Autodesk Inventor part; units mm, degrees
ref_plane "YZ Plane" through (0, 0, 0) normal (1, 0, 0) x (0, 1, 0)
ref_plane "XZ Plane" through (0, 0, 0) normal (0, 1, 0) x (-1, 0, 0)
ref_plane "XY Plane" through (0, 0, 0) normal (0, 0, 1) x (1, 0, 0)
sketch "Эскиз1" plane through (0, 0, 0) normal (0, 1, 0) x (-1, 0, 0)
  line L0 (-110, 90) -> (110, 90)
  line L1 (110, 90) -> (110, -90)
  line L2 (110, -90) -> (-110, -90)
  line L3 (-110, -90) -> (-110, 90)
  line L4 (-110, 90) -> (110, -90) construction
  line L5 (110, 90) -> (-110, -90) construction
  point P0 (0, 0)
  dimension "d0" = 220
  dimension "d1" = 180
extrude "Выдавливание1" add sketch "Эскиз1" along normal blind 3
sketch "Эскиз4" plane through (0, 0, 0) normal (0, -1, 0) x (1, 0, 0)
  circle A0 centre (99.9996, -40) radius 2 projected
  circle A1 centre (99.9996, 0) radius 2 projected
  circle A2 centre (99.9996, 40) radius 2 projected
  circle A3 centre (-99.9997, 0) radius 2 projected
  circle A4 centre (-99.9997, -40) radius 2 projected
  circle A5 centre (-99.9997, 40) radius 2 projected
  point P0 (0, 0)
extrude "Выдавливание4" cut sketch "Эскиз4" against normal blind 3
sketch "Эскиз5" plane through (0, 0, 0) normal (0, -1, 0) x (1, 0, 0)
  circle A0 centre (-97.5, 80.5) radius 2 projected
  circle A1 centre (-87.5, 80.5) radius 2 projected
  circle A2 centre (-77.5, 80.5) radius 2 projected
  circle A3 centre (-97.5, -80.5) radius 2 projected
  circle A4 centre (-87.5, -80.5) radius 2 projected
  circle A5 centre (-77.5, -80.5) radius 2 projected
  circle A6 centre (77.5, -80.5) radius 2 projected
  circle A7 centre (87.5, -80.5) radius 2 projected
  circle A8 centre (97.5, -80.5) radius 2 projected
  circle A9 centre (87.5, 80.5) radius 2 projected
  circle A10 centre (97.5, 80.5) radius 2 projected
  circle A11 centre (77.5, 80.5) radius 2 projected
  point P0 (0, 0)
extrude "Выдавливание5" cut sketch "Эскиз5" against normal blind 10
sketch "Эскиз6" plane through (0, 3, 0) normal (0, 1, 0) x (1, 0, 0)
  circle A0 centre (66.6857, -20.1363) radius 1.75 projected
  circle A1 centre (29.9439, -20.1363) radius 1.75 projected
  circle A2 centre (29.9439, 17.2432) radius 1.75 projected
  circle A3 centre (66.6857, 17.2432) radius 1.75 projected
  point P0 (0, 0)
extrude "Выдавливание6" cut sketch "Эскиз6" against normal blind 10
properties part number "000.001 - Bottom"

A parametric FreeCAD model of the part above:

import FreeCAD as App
import Part
import Sketcher

V = App.Vector


def add_polygon(sketch, points):
    """Adds a closed chain of lines whose ends are joined by coincident constraints."""
    first, n = sketch.GeometryCount, len(points)
    for a, b in zip(points, points[1:] + points[:1]):
        sketch.addGeometry(Part.LineSegment(App.Vector(*a, 0), App.Vector(*b, 0)), False)
    for i in range(n):
        sketch.addConstraint(Sketcher.Constraint("Coincident", first + i, 2, first + (i + 1) % n, 1))

doc = App.newDocument("Part")
body = doc.addObject("PartDesign::Body", "Body")

sketch1 = body.newObject("Sketcher::SketchObject", "Sketch")
sketch1.AttachmentSupport = (doc.getObject("XZ_Plane"), [""])
sketch1.MapMode = "FlatFace"
add_polygon(sketch1, [(-110, 90), (110, 90), (110, -90), (-110, -90)])
sketch1.addConstraint([
    Sketcher.Constraint("Horizontal", 0),
    Sketcher.Constraint("Vertical", 1),
    Sketcher.Constraint("Horizontal", 2),
    Sketcher.Constraint("Vertical", 3),
    Sketcher.Constraint("Symmetric", 0, 2, 2, 2, -1, 1),
    Sketcher.Constraint("DistanceX", 0, 1, 0, 2, 220.0),
    Sketcher.Constraint("DistanceY", 1, 2, 1, 1, 180.0),
])
pad1 = body.newObject("PartDesign::Pad", "Pad")
pad1.Profile = sketch1
pad1.Length = 3
pad1.Reversed = True

sketch2 = body.newObject("Sketcher::SketchObject", "Sketch001")
sketch2.AttachmentSupport = (doc.getObject("XZ_Plane"), [""])
sketch2.MapMode = "FlatFace"
sketch2.addGeometry([
    Part.Circle(V(99.9996, -40, 0), V(0, 0, 1), 2),
    Part.Circle(V(99.9996, 0, 0), V(0, 0, 1), 2),
    Part.Circle(V(99.9996, 40, 0), V(0, 0, 1), 2),
    Part.Circle(V(-99.9997, 0, 0), V(0, 0, 1), 2),
    Part.Circle(V(-99.9997, -40, 0), V(0, 0, 1), 2),
    Part.Circle(V(-99.9997, 40, 0), V(0, 0, 1), 2),
], False)
sketch2.addConstraint([
    Sketcher.Constraint("Equal", 0, 1),
    Sketcher.Constraint("Equal", 1, 2),
    Sketcher.Constraint("Equal", 2, 3),
    Sketcher.Constraint("Equal", 3, 4),
    Sketcher.Constraint("Equal", 4, 5),
    Sketcher.Constraint("Symmetric", 1, 3, 3, 3, -1, 1),
    Sketcher.Constraint("Symmetric", 2, 3, 4, 3, -1, 1),
    Sketcher.Constraint("Symmetric", 0, 3, 5, 3, -1, 1),
    Sketcher.Constraint("Symmetric", 0, 3, 4, 3, -2),
    Sketcher.Constraint("PointOnObject", 1, 3, -1),
    Sketcher.Constraint("Vertical", 0, 3, 1, 3),
    Sketcher.Constraint("Diameter", 0, 4.0),
    Sketcher.Constraint("DistanceY", 0, 3, -1, 1, 40.0),
    Sketcher.Constraint("DistanceX", -1, 1, 0, 3, 99.9996),
])
pocket1 = body.newObject("PartDesign::Pocket", "Pocket")
pocket1.Profile = sketch2
pocket1.Length = 3

sketch3 = body.newObject("Sketcher::SketchObject", "Sketch002")
sketch3.AttachmentSupport = (doc.getObject("XZ_Plane"), [""])
sketch3.MapMode = "FlatFace"
sketch3.addGeometry([
    Part.Circle(V(-97.5, 80.5, 0), V(0, 0, 1), 2),
    Part.Circle(V(-87.5, 80.5, 0), V(0, 0, 1), 2),
    Part.Circle(V(-77.5, 80.5, 0), V(0, 0, 1), 2),
    Part.Circle(V(-97.5, -80.5, 0), V(0, 0, 1), 2),
    Part.Circle(V(-87.5, -80.5, 0), V(0, 0, 1), 2),
    Part.Circle(V(-77.5, -80.5, 0), V(0, 0, 1), 2),
    Part.Circle(V(77.5, -80.5, 0), V(0, 0, 1), 2),
    Part.Circle(V(87.5, -80.5, 0), V(0, 0, 1), 2),
    Part.Circle(V(97.5, -80.5, 0), V(0, 0, 1), 2),
    Part.Circle(V(87.5, 80.5, 0), V(0, 0, 1), 2),
    Part.Circle(V(97.5, 80.5, 0), V(0, 0, 1), 2),
    Part.Circle(V(77.5, 80.5, 0), V(0, 0, 1), 2),
], False)
sketch3.addConstraint([
    Sketcher.Constraint("Equal", 0, 1),
    Sketcher.Constraint("Equal", 1, 2),
    Sketcher.Constraint("Equal", 2, 3),
    Sketcher.Constraint("Equal", 3, 4),
    Sketcher.Constraint("Equal", 4, 5),
    Sketcher.Constraint("Equal", 5, 6),
    Sketcher.Constraint("Equal", 6, 7),
    Sketcher.Constraint("Equal", 7, 8),
    Sketcher.Constraint("Equal", 8, 9),
    Sketcher.Constraint("Equal", 9, 10),
    Sketcher.Constraint("Equal", 10, 11),
    Sketcher.Constraint("Symmetric", 2, 3, 6, 3, -1, 1),
    Sketcher.Constraint("Symmetric", 1, 3, 7, 3, -1, 1),
    Sketcher.Constraint("Symmetric", 0, 3, 8, 3, -1, 1),
    Sketcher.Constraint("Symmetric", 4, 3, 9, 3, -1, 1),
    Sketcher.Constraint("Symmetric", 3, 3, 10, 3, -1, 1),
    Sketcher.Constraint("Symmetric", 5, 3, 11, 3, -1, 1),
    Sketcher.Constraint("Symmetric", 5, 3, 6, 3, -2),
    Sketcher.Constraint("Symmetric", 4, 3, 7, 3, -2),
    Sketcher.Constraint("Symmetric", 3, 3, 8, 3, -2),
    Sketcher.Constraint("Horizontal", 0, 3, 1, 3),
    Sketcher.Constraint("Horizontal", 1, 3, 2, 3),
    Sketcher.Constraint("Diameter", 0, 4.0),
    Sketcher.Constraint("DistanceX", 0, 3, 1, 3, 10.0),
    Sketcher.Constraint("DistanceX", 1, 3, 2, 3, 10.0),
    Sketcher.Constraint("DistanceY", 3, 3, 0, 3, 161.0),
    Sketcher.Constraint("DistanceX", 5, 3, 6, 3, 155.0),
])
pocket2 = body.newObject("PartDesign::Pocket", "Pocket001")
pocket2.Profile = sketch3
pocket2.Length = 10

sketch4 = body.newObject("Sketcher::SketchObject", "Sketch003")
sketch4.AttachmentSupport = (doc.getObject("XZ_Plane"), [""])
sketch4.MapMode = "FlatFace"
sketch4.AttachmentOffset = App.Placement(V(0, 0, -3), App.Rotation())
sketch4.addGeometry([
    Part.Circle(V(66.6857, 20.1363, 0), V(0, 0, 1), 1.75),
    Part.Circle(V(29.9439, 20.1363, 0), V(0, 0, 1), 1.75),
    Part.Circle(V(29.9439, -17.2432, 0), V(0, 0, 1), 1.75),
    Part.Circle(V(66.6857, -17.2432, 0), V(0, 0, 1), 1.75),
], False)
sketch4.addConstraint([
    Sketcher.Constraint("Equal", 0, 1),
    Sketcher.Constraint("Equal", 1, 2),
    Sketcher.Constraint("Equal", 2, 3),
    Sketcher.Constraint("Horizontal", 0, 3, 1, 3),
    Sketcher.Constraint("Horizontal", 2, 3, 3, 3),
    Sketcher.Constraint("Vertical", 1, 3, 2, 3),
    Sketcher.Constraint("Vertical", 0, 3, 3, 3),
    Sketcher.Constraint("Diameter", 0, 3.5),
    Sketcher.Constraint("DistanceX", -1, 1, 1, 3, 29.944),
    Sketcher.Constraint("DistanceX", -1, 1, 0, 3, 66.6857),
    Sketcher.Constraint("DistanceY", -1, 1, 0, 3, 20.1363),
    Sketcher.Constraint("DistanceY", 2, 3, -1, 1, 17.2432),
])
pocket3 = body.newObject("PartDesign::Pocket", "Pocket002")
pocket3.Profile = sketch4
pocket3.Length = 10
pocket3.Reversed = True

doc.recompute()
